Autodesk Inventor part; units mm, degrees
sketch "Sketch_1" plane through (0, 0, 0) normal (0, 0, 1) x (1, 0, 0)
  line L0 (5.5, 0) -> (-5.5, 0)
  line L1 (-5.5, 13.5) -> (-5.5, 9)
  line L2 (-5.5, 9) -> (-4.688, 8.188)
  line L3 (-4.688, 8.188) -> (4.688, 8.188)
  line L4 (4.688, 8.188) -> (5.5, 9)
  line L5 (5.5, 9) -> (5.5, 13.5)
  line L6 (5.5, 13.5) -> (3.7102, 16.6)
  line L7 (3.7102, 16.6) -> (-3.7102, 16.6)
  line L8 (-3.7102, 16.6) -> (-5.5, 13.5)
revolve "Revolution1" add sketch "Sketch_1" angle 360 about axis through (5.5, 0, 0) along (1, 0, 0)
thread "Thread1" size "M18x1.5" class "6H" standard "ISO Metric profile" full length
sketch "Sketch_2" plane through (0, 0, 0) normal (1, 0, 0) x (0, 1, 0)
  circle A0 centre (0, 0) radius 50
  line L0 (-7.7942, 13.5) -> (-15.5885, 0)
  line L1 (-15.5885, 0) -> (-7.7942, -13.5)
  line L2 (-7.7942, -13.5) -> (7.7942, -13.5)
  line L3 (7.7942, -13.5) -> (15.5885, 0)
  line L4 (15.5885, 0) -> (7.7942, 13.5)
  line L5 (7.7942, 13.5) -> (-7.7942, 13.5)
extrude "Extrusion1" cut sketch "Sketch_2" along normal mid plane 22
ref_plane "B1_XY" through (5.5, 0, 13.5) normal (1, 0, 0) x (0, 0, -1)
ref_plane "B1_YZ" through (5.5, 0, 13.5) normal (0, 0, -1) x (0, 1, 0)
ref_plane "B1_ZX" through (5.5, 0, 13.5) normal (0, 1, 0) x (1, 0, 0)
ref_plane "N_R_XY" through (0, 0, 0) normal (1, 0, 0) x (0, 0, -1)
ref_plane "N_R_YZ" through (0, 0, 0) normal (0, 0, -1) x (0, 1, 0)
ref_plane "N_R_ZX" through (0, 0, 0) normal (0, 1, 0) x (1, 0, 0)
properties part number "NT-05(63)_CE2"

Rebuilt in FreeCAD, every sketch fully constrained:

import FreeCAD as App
import Part
import Sketcher
from FreeCAD import Vector
Q = App.Units.Quantity

doc = App.newDocument("Part")
body = doc.addObject("PartDesign::Body", "Body")

# Sketch on XY plane
sketch1 = body.newObject("Sketcher::SketchObject", "Sketch")
sketch1.AttachmentSupport = (doc.getObject("XY_Plane"), [""])
sketch1.MapMode = "FlatFace"
sketch1.addGeometry([
    Part.LineSegment(Vector(-3.7102, 16.6, 0), Vector(-5.5, 13.5, 0)),  # 0
    Part.LineSegment(Vector(-5.5, 13.5, 0), Vector(-5.5, 9, 0)),  # 1
    Part.LineSegment(Vector(-5.5, 9, 0), Vector(-4.688, 8.188, 0)),  # 2
    Part.LineSegment(Vector(-4.688, 8.188, 0), Vector(4.688, 8.188, 0)),  # 3
    Part.LineSegment(Vector(4.688, 8.188, 0), Vector(5.5, 9, 0)),  # 4
    Part.LineSegment(Vector(5.5, 9, 0), Vector(5.5, 13.5, 0)),  # 5
    Part.LineSegment(Vector(5.5, 13.5, 0), Vector(3.7102, 16.6, 0)),  # 6
    Part.LineSegment(Vector(3.7102, 16.6, 0), Vector(-3.7102, 16.6, 0)),  # 7
], False)
sketch1.addConstraint([
    Sketcher.Constraint("Coincident", 0, 2, 1, 1),
    Sketcher.Constraint("Coincident", 1, 2, 2, 1),
    Sketcher.Constraint("Coincident", 2, 2, 3, 1),
    Sketcher.Constraint("Coincident", 3, 2, 4, 1),
    Sketcher.Constraint("Coincident", 4, 2, 5, 1),
    Sketcher.Constraint("Coincident", 5, 2, 6, 1),
    Sketcher.Constraint("Coincident", 6, 2, 7, 1),
    Sketcher.Constraint("Coincident", 7, 2, 0, 1),
    Sketcher.Constraint("Vertical", 1),
    Sketcher.Constraint("Horizontal", 3),
    Sketcher.Constraint("Vertical", 5),
    Sketcher.Constraint("Horizontal", 7),
    Sketcher.Constraint("Symmetric", 1, 2, 4, 2, -2),
    Sketcher.Constraint("Perpendicular", 2, 4),
    Sketcher.Constraint("Horizontal", 0, 2, 5, 2),
    Sketcher.Constraint("Equal", 2, 4),
    Sketcher.Constraint("Equal", 0, 6),
    Sketcher.Constraint("Angle", 0, Q("-120.0002 deg")),
    Sketcher.Constraint("DistanceY", 1, 2, 1, 1, 4.5),
    Sketcher.Constraint("DistanceY", -1, 1, 1, 2, 9.0),
    Sketcher.Constraint("DistanceX", 1, 2, 4, 2, 11.0),
    Sketcher.Constraint("DistanceY", -1, 1, 6, 2, 16.6),
    Sketcher.Constraint("DistanceX", 3, 1, 3, 2, 9.376),
])
revolution = body.newObject("PartDesign::Revolution", "Revolution")
revolution.Profile = sketch1
revolution.ReferenceAxis = (sketch1, ["H_Axis"])
revolution.Angle = 360

# Sketch on YZ plane
sketch2 = body.newObject("Sketcher::SketchObject", "Sketch001")
sketch2.AttachmentSupport = (doc.getObject("YZ_Plane"), [""])
sketch2.MapMode = "FlatFace"
sketch2.addGeometry([
    Part.Circle(Vector(0, 0, 0), Vector(0, 0, 1), 50),  # 0
    Part.LineSegment(Vector(-15.5885, 0, 0), Vector(-7.7942, 13.5, 0)),  # 1
    Part.LineSegment(Vector(-7.7942, 13.5, 0), Vector(7.7942, 13.5, 0)),  # 2
    Part.LineSegment(Vector(7.7942, 13.5, 0), Vector(15.5885, 0, 0)),  # 3
    Part.LineSegment(Vector(15.5885, 0, 0), Vector(7.7942, -13.5, 0)),  # 4
    Part.LineSegment(Vector(7.7942, -13.5, 0), Vector(-7.7942, -13.5, 0)),  # 5
    Part.LineSegment(Vector(-7.7942, -13.5, 0), Vector(-15.5885, 0, 0)),  # 6
], False)
sketch2.addConstraint([
    Sketcher.Constraint("Coincident", 1, 2, 2, 1),
    Sketcher.Constraint("Coincident", 2, 2, 3, 1),
    Sketcher.Constraint("Coincident", 3, 2, 4, 1),
    Sketcher.Constraint("Coincident", 4, 2, 5, 1),
    Sketcher.Constraint("Coincident", 5, 2, 6, 1),
    Sketcher.Constraint("Coincident", 6, 2, 1, 1),
    Sketcher.Constraint("Horizontal", 2),
    Sketcher.Constraint("Horizontal", 5),
    Sketcher.Constraint("Coincident", 0, 3, -1, 1),
    Sketcher.Constraint("Symmetric", 1, 2, 4, 2, -1, 1),
    Sketcher.Constraint("Symmetric", 3, 2, 6, 2, -1, 1),
    Sketcher.Constraint("PointOnObject", 3, 2, -1),
    Sketcher.Constraint("Parallel", 3, 6),
    Sketcher.Constraint("Vertical", 2, 2, 4, 2),
    Sketcher.Constraint("Diameter", 0, 100.0),
    Sketcher.Constraint("Angle", 1, Q("59.9998 deg")),
    Sketcher.Constraint("DistanceY", 4, 2, 2, 2, 27.0),
    Sketcher.Constraint("DistanceX", 2, 1, 2, 2, 15.5884),
])
pocket1 = body.newObject("PartDesign::Pocket", "Pocket")
pocket1.Profile = sketch2
pocket1.Length = 22
pocket1.Midplane = True

doc.recompute()
